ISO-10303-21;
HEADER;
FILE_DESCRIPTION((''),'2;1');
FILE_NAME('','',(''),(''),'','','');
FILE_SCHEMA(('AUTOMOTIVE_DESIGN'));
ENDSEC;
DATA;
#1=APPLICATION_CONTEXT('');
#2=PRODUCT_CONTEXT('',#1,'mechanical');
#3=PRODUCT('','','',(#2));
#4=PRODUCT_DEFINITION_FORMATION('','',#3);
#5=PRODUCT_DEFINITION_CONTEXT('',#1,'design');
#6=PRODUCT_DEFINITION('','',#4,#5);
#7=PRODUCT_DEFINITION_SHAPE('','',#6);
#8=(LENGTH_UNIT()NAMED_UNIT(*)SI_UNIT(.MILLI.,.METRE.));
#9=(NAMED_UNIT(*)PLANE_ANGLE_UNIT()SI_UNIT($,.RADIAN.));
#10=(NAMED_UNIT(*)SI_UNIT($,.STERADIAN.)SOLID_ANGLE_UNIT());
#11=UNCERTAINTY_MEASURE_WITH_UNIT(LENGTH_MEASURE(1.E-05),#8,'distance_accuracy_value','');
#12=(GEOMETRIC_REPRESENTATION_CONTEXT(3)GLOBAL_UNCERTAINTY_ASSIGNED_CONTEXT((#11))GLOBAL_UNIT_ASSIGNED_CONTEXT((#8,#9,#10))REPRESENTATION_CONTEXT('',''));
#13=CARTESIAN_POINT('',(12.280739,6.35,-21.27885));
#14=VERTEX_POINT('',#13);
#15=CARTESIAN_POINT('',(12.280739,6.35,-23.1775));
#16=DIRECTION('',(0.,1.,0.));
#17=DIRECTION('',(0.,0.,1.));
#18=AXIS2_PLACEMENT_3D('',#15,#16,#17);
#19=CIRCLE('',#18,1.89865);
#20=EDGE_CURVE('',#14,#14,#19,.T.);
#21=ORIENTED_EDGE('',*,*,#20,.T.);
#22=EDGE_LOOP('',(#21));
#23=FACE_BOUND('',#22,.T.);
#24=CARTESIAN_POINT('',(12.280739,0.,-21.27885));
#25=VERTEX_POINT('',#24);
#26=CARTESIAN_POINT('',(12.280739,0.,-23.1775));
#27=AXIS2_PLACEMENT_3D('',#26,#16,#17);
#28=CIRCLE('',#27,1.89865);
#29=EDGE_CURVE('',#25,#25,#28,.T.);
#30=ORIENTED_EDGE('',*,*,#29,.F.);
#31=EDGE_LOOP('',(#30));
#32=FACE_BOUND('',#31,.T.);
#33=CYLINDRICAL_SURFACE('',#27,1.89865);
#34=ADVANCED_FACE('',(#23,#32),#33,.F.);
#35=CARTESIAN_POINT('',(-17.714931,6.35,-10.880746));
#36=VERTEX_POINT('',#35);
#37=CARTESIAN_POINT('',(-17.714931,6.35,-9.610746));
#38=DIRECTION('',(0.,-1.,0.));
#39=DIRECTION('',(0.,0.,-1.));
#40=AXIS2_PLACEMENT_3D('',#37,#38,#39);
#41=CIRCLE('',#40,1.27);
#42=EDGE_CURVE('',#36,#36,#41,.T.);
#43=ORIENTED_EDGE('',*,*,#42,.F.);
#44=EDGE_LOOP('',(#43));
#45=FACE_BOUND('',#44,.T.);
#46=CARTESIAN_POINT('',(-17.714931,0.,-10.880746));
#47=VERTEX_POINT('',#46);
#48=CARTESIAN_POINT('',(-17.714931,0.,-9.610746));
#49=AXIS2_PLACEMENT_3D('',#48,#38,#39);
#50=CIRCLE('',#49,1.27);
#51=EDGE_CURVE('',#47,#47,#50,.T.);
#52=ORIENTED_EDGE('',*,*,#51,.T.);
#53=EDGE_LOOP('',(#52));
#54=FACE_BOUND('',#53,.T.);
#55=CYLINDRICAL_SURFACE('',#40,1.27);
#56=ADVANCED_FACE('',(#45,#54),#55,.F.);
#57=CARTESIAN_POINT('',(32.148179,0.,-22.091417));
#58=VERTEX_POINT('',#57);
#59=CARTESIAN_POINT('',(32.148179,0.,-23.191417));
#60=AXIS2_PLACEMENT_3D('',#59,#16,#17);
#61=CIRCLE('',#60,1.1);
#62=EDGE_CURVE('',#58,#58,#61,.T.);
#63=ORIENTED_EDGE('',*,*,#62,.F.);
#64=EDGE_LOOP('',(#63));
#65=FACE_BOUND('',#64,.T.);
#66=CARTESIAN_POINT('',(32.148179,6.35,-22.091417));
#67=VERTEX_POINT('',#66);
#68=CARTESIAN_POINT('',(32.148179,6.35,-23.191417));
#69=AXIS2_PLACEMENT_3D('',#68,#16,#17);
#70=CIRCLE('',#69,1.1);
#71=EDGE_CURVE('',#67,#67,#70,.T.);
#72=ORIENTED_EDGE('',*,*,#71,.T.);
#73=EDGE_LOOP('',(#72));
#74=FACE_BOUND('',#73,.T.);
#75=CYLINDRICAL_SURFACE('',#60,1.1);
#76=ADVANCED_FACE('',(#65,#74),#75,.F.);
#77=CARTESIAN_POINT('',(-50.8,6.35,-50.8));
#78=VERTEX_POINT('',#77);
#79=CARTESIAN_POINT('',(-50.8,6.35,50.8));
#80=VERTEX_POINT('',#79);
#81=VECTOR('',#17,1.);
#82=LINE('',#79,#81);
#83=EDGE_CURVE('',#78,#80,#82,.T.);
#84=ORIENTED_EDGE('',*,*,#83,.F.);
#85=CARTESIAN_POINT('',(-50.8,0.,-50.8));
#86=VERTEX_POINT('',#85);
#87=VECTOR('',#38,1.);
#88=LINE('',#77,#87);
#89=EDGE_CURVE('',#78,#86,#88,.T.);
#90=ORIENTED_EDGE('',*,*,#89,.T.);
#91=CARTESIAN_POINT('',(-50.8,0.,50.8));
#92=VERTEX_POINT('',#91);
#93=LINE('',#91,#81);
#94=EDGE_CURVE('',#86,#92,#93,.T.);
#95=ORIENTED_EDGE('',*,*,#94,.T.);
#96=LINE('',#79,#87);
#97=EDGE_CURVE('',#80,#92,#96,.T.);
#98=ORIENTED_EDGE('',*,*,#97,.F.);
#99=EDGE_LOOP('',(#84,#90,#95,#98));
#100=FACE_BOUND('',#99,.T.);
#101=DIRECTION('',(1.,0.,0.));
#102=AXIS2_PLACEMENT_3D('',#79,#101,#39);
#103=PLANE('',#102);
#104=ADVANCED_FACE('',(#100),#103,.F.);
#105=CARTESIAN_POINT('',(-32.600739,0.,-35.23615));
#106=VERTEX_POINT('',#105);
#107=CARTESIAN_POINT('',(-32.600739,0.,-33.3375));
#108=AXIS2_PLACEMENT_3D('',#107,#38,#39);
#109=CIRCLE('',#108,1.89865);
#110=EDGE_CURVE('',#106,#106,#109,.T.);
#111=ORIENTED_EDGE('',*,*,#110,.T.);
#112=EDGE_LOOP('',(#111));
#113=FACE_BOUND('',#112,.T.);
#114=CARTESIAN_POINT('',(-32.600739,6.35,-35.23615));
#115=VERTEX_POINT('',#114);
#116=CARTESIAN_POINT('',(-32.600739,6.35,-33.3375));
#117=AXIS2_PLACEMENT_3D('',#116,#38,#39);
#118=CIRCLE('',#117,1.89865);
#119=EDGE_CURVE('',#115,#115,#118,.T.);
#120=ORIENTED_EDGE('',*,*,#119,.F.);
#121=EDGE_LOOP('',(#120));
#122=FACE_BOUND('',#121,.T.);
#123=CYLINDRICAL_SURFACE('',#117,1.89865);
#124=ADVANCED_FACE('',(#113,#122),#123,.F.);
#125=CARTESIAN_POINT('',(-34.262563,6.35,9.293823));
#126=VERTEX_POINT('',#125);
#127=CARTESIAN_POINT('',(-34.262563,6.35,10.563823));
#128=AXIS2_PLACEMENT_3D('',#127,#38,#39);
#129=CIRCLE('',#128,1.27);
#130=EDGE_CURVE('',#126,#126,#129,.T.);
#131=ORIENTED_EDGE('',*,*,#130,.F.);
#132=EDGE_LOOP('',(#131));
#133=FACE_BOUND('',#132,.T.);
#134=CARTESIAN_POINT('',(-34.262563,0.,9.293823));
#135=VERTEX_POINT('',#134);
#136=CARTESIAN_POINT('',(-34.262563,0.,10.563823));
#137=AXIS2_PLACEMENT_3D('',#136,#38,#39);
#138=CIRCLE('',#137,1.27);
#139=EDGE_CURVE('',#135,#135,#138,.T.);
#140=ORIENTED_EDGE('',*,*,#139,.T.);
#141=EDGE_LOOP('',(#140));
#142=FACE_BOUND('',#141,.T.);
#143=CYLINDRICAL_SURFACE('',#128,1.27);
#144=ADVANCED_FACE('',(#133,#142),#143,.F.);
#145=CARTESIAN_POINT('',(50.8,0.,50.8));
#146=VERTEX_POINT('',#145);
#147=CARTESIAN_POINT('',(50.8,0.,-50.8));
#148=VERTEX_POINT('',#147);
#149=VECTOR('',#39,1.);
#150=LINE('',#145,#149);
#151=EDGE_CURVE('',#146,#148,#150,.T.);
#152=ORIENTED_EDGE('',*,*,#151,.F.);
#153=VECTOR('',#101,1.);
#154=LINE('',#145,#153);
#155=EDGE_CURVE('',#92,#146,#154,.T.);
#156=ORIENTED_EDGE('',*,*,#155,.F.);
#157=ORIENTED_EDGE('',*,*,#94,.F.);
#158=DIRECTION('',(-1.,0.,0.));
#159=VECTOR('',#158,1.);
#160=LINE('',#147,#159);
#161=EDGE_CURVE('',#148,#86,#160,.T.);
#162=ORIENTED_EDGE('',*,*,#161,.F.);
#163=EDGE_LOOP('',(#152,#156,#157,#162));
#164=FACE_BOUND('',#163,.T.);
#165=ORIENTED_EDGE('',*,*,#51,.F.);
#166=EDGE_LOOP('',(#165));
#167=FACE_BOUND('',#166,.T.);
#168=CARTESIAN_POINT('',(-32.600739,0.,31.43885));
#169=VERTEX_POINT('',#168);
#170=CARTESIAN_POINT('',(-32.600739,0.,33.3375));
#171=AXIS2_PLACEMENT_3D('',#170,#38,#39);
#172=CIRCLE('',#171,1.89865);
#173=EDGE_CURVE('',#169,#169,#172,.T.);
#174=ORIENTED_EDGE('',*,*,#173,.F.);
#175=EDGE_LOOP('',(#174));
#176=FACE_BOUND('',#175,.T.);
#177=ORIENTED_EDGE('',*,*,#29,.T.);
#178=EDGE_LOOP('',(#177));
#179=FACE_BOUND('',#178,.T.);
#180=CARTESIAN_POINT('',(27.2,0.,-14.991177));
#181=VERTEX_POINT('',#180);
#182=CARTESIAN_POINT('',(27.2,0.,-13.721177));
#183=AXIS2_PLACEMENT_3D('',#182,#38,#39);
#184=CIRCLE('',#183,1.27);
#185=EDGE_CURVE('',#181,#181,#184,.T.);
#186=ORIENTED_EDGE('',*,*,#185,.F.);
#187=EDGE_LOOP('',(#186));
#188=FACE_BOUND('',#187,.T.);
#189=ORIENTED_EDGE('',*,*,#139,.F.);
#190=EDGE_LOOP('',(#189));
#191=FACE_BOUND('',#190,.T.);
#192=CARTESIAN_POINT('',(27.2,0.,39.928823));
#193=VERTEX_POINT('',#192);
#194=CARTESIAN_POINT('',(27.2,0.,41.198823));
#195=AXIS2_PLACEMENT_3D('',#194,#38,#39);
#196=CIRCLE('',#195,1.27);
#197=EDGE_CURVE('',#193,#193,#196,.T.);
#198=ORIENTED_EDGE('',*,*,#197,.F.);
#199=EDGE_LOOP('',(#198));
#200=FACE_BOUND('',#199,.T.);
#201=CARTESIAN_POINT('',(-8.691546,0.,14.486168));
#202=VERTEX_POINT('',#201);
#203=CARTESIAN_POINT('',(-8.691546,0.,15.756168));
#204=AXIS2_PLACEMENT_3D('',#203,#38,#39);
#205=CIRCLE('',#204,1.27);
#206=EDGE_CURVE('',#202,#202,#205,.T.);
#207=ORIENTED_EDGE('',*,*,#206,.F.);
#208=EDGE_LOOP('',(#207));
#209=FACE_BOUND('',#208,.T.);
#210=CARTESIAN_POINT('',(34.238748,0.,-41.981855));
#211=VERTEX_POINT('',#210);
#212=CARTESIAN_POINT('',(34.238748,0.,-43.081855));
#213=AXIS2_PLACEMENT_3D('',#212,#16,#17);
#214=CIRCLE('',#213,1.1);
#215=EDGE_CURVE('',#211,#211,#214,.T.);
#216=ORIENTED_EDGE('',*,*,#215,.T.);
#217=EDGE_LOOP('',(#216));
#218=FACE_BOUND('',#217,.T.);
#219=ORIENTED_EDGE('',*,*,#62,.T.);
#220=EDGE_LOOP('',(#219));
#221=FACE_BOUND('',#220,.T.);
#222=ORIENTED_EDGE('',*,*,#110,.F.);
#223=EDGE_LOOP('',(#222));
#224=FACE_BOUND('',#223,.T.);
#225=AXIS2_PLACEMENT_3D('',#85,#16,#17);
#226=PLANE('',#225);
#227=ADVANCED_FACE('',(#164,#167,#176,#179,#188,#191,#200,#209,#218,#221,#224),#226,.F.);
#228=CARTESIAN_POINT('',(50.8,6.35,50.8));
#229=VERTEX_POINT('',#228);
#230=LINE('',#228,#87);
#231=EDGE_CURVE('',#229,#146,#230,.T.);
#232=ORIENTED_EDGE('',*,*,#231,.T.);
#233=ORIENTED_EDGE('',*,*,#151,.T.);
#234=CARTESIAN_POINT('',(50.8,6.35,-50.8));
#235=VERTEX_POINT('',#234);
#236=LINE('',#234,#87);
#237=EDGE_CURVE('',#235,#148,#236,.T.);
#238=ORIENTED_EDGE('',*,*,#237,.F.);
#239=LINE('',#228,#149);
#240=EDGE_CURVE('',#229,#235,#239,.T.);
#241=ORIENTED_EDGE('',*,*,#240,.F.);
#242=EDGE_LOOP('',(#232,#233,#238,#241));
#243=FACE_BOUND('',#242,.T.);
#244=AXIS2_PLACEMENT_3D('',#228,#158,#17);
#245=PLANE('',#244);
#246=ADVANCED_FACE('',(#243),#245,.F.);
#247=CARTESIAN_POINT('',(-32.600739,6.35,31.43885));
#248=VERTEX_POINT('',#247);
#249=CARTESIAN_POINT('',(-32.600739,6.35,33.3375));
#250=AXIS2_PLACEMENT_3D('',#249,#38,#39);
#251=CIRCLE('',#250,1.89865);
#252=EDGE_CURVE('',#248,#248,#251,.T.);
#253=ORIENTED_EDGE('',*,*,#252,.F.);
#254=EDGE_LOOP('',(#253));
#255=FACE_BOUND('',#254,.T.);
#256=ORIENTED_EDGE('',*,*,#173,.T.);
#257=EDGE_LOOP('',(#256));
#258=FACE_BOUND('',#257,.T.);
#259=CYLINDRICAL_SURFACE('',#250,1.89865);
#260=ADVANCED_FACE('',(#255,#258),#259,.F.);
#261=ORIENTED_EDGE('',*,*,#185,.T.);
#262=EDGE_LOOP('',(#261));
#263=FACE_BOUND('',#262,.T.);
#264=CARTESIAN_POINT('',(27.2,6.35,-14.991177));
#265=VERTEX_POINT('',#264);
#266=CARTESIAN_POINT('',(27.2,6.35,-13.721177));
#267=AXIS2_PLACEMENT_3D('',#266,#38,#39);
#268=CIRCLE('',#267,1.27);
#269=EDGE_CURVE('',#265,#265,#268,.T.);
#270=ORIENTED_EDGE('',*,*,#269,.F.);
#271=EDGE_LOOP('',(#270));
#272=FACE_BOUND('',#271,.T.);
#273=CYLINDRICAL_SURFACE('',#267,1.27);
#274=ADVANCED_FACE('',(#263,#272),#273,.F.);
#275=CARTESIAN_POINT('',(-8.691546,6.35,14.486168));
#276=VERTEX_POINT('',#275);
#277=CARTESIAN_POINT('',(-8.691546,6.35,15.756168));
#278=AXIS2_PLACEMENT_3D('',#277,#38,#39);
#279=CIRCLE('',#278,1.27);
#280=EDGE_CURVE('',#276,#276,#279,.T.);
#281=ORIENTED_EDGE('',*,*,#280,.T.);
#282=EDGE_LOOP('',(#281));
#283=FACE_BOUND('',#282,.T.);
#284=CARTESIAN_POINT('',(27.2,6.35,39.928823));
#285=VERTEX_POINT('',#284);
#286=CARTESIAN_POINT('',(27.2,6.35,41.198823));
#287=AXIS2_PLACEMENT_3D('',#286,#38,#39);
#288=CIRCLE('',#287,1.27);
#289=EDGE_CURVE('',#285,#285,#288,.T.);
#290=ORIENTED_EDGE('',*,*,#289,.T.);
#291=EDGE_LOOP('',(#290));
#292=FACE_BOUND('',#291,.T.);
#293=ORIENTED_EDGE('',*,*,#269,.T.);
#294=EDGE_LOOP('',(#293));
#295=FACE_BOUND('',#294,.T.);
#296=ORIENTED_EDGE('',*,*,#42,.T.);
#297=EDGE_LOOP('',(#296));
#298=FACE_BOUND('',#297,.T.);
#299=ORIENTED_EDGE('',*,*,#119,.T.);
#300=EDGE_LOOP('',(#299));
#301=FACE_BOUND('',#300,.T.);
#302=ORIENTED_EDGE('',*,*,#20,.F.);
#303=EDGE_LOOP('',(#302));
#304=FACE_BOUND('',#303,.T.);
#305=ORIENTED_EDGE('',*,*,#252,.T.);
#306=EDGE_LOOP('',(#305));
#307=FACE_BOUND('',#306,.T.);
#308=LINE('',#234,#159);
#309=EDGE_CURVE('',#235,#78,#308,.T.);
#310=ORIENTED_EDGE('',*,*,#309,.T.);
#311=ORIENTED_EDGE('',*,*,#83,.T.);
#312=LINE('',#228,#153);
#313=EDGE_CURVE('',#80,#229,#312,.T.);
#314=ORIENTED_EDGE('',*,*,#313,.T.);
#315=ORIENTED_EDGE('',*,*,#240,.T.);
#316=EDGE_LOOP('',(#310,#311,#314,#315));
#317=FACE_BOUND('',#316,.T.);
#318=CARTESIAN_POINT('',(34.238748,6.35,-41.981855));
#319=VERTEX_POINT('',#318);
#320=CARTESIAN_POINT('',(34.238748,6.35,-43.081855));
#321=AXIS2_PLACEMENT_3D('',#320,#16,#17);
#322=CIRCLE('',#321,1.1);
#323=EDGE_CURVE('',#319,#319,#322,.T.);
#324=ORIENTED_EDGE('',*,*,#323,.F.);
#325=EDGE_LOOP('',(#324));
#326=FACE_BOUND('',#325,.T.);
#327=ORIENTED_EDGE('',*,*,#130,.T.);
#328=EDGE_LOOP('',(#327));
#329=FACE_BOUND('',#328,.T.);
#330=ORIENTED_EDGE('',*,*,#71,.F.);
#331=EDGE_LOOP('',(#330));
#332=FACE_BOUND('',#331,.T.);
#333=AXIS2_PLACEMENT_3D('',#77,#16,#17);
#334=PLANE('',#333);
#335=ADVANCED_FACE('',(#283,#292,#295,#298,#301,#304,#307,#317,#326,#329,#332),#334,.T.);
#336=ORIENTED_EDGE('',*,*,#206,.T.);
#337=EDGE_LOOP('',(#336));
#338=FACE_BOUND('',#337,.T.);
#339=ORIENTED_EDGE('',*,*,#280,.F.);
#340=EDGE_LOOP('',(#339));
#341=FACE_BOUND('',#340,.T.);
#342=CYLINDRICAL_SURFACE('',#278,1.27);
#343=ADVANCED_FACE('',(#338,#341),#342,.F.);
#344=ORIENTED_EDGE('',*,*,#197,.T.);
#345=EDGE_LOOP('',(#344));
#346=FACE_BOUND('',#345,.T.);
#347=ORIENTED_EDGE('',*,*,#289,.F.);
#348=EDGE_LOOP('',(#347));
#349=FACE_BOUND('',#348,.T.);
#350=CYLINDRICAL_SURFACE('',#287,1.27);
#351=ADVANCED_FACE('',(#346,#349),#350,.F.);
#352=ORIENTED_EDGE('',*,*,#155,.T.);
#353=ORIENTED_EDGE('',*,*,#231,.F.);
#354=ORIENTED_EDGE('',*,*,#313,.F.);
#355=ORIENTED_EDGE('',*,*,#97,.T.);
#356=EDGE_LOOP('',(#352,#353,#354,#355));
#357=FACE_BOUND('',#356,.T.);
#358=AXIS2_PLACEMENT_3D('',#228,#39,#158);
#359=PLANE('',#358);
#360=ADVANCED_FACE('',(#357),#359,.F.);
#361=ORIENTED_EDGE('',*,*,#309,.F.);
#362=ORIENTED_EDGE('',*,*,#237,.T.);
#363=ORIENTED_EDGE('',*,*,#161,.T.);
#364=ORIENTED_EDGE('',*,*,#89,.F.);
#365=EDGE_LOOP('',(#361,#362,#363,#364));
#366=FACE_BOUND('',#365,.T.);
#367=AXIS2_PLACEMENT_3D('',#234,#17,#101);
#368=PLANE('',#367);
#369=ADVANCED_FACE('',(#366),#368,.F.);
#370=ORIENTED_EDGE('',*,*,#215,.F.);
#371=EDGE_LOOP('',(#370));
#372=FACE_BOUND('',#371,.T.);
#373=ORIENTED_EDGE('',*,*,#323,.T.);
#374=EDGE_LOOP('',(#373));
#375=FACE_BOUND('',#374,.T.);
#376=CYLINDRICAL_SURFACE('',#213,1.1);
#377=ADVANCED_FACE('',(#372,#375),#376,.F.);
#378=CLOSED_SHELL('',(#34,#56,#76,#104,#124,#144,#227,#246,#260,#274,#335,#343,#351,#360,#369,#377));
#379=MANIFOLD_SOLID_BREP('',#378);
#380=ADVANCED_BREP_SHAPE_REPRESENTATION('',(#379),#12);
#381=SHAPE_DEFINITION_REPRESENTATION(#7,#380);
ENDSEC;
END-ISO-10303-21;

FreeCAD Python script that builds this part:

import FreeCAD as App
import Part
import Sketcher
from FreeCAD import Vector
Q = App.Units.Quantity

doc = App.newDocument("Part")
body = doc.addObject("PartDesign::Body", "Body")

sketch1 = body.newObject("Sketcher::SketchObject", "Sketch")
sketch1.AttachmentSupport = (doc.getObject("XZ_Plane"), [""])
sketch1.MapMode = "FlatFace"
sketch1.addGeometry(Part.LineSegment(Vector(-51, -51, 0), Vector(-51, 51, 0)), False)
sketch1.addGeometry(Part.LineSegment(Vector(-51, 51, 0), Vector(51, 51, 0)), False)
sketch1.addGeometry(Part.LineSegment(Vector(51, 51, 0), Vector(51, -51, 0)), False)
sketch1.addGeometry(Part.LineSegment(Vector(51, -51, 0), Vector(-51, -51, 0)), False)
sketch1.addConstraint(Sketcher.Constraint("Coincident", 0, 2, 1, 1))
sketch1.addConstraint(Sketcher.Constraint("Coincident", 1, 2, 2, 1))
sketch1.addConstraint(Sketcher.Constraint("Coincident", 2, 2, 3, 1))
sketch1.addConstraint(Sketcher.Constraint("Coincident", 3, 2, 0, 1))
sketch1.addConstraint(Sketcher.Constraint("Vertical", 0))
sketch1.addConstraint(Sketcher.Constraint("Horizontal", 1))
sketch1.addConstraint(Sketcher.Constraint("Vertical", 2))
sketch1.addConstraint(Sketcher.Constraint("Horizontal", 3))
sketch1.addConstraint(Sketcher.Constraint("Symmetric", 0, 2, 2, 2, -1, 1))
sketch1.addConstraint(Sketcher.Constraint("Equal", 3, 0))
sketch1.addConstraint(Sketcher.Constraint("DistanceX", 1, 1, 1, 2, Q("4 in")))
pad1 = body.newObject("PartDesign::Pad", "Pad")
pad1.Profile = sketch1
pad1.Length = Q("0.25 in")
pad1.Reversed = True

sketch2 = body.newObject("Sketcher::SketchObject", "Sketch001")
sketch2.AttachmentSupport = (doc.getObject("XZ_Plane"), [""])
sketch2.MapMode = "FlatFace"
sketch2.addGeometry(Part.Circle(Vector(-8.7, 15.8, 0), Vector(0, 0, 1), 1.3), False)
sketch2.addGeometry(Part.Circle(Vector(-34.3, 10.6, 0), Vector(0, 0, 1), 1.3), False)
sketch2.addGeometry(Part.Circle(Vector(-17.7, -9.6, 0), Vector(0, 0, 1), 1.3), False)
sketch2.addConstraint(Sketcher.Constraint("Equal", 0, 1))
sketch2.addConstraint(Sketcher.Constraint("Equal", 1, 2))
sketch2.addConstraint(Sketcher.Constraint("Diameter", 0, Q("0.1 in")))
sketch2.addConstraint(Sketcher.Constraint("DistanceX", 2, 3, -1, 1, Q("17.714931 mm")))
sketch2.addConstraint(Sketcher.Constraint("DistanceX", 1, 3, 2, 3, Q("16.547632 mm")))
sketch2.addConstraint(Sketcher.Constraint("DistanceY", 2, 3, 1, 3, Q("20.174569 mm")))
sketch2.addConstraint(Sketcher.Constraint("DistanceX", 0, 3, -1, 1, Q("8.691546 mm")))
sketch2.addConstraint(Sketcher.Constraint("DistanceY", -1, 1, 0, 3, Q("15.756168 mm")))
sketch2.addConstraint(Sketcher.Constraint("DistanceY", -1, 1, 1, 3, Q("10.563823 mm")))
pocket1 = body.newObject("PartDesign::Pocket", "Pocket")
pocket1.Profile = sketch2
pocket1.Type = "ThroughAll"

sketch3 = body.newObject("Sketcher::SketchObject", "Sketch002")
sketch3.AttachmentSupport = (doc.getObject("XZ_Plane"), [""])
sketch3.MapMode = "FlatFace"
sketch3.addGeometry(Part.Circle(Vector(27.2, 41.2, 0), Vector(0, 0, 1), 1.3), False)
sketch3.addGeometry(Part.Circle(Vector(27.2, -13.7, 0), Vector(0, 0, 1), 1.3), False)
sketch3.addConstraint(Sketcher.Constraint("Equal", 0, 1))
sketch3.addConstraint(Sketcher.Constraint("Vertical", 0, 3, 1, 3))
sketch3.addConstraint(Sketcher.Constraint("Diameter", 0, Q("0.1 in")))
sketch3.addConstraint(Sketcher.Constraint("DistanceX", -1, 1, 0, 3, Q("27.2 mm")))
sketch3.addConstraint(Sketcher.Constraint("DistanceY", 1, 3, 0, 3, Q("54.92 mm")))
sketch3.addConstraint(Sketcher.Constraint("DistanceY", -1, 1, 0, 3, Q("41.198823 mm")))
pocket2 = body.newObject("PartDesign::Pocket", "Pocket001")
pocket2.Profile = sketch3
pocket2.Type = "ThroughAll"

sketch4 = body.newObject("Sketcher::SketchObject", "Sketch003")
sketch4.AttachmentSupport = (doc.getObject("XZ_Plane"), [""])
sketch4.MapMode = "FlatFace"
sketch4.addGeometry(Part.Circle(Vector(-32.6, -33.3, 0), Vector(0, 0, 1), 1.9), False)
sketch4.addGeometry(Part.Circle(Vector(-32.6, 33.3, 0), Vector(0, 0, 1), 1.9), False)
sketch4.addConstraint(Sketcher.Constraint("Equal", 0, 1))
sketch4.addConstraint(Sketcher.Constraint("Symmetric", 0, 3, 1, 3, -1))
sketch4.addConstraint(Sketcher.Constraint("Diameter", 0, Q("0.1495 in")))
sketch4.addConstraint(Sketcher.Constraint("DistanceY", 0, 3, -1, 1, Q("1.3125 in")))
sketch4.addConstraint(Sketcher.Constraint("DistanceX", 0, 3, -1, 1, Q("32.600739 mm")))
pocket3 = body.newObject("PartDesign::Pocket", "Pocket002")
pocket3.Profile = sketch4
pocket3.Type = "ThroughAll"

sketch5 = body.newObject("Sketcher::SketchObject", "Sketch004")
sketch5.AttachmentSupport = (doc.getObject("XZ_Plane"), [""])
sketch5.MapMode = "FlatFace"
sketch5.AttachmentOffset = App.Placement(Vector(0, 0, -0.25 * 25.4), App.Rotation())
sketch5.addGeometry(Part.Circle(Vector(12.3, -23.2, 0), Vector(0, 0, 1), 1.9), False)
sketch5.addConstraint(Sketcher.Constraint("Diameter", 0, Q("0.1495 in")))
sketch5.addConstraint(Sketcher.Constraint("DistanceY", 0, 3, -1, 1, Q("0.9125 in")))
sketch5.addConstraint(Sketcher.Constraint("DistanceX", -1, 1, 0, 3, Q("12.280739 mm")))
pocket4 = body.newObject("PartDesign::Pocket", "Pocket003")
pocket4.Profile = sketch5
pocket4.Type = "ThroughAll"
pocket4.Reversed = True

sketch6 = body.newObject("Sketcher::SketchObject", "Sketch005")
sketch6.AttachmentSupport = (doc.getObject("XZ_Plane"), [""])
sketch6.MapMode = "FlatFace"
sketch6.AttachmentOffset = App.Placement(Vector(0, 0, -0.25 * 25.4), App.Rotation())
sketch6.addGeometry(Part.Circle(Vector(34.2, -43.1, 0), Vector(0, 0, 1), 1.1), False)
sketch6.addGeometry(Part.Circle(Vector(32.1, -23.2, 0), Vector(0, 0, 1), 1.1), False)
sketch6.addConstraint(Sketcher.Constraint("Equal", 0, 1))
sketch6.addConstraint(Sketcher.Constraint("Diameter", 0, Q("2.2 mm")))
sketch6.addConstraint(Sketcher.Constraint("DistanceX", -1, 1, 0, 3, Q("34.238748 mm")))
sketch6.addConstraint(Sketcher.Constraint("DistanceX", -1, 1, 1, 3, Q("32.148179 mm")))
sketch6.addConstraint(Sketcher.Constraint("DistanceY", 0, 3, -1, 1, Q("43.081855 mm")))
sketch6.addConstraint(Sketcher.Constraint("DistanceY", 1, 3, -1, 1, Q("23.191417 mm")))
pocket5 = body.newObject("PartDesign::Pocket", "Pocket004")
pocket5.Profile = sketch6
pocket5.Type = "ThroughAll"
pocket5.Reversed = True

doc.recompute()
